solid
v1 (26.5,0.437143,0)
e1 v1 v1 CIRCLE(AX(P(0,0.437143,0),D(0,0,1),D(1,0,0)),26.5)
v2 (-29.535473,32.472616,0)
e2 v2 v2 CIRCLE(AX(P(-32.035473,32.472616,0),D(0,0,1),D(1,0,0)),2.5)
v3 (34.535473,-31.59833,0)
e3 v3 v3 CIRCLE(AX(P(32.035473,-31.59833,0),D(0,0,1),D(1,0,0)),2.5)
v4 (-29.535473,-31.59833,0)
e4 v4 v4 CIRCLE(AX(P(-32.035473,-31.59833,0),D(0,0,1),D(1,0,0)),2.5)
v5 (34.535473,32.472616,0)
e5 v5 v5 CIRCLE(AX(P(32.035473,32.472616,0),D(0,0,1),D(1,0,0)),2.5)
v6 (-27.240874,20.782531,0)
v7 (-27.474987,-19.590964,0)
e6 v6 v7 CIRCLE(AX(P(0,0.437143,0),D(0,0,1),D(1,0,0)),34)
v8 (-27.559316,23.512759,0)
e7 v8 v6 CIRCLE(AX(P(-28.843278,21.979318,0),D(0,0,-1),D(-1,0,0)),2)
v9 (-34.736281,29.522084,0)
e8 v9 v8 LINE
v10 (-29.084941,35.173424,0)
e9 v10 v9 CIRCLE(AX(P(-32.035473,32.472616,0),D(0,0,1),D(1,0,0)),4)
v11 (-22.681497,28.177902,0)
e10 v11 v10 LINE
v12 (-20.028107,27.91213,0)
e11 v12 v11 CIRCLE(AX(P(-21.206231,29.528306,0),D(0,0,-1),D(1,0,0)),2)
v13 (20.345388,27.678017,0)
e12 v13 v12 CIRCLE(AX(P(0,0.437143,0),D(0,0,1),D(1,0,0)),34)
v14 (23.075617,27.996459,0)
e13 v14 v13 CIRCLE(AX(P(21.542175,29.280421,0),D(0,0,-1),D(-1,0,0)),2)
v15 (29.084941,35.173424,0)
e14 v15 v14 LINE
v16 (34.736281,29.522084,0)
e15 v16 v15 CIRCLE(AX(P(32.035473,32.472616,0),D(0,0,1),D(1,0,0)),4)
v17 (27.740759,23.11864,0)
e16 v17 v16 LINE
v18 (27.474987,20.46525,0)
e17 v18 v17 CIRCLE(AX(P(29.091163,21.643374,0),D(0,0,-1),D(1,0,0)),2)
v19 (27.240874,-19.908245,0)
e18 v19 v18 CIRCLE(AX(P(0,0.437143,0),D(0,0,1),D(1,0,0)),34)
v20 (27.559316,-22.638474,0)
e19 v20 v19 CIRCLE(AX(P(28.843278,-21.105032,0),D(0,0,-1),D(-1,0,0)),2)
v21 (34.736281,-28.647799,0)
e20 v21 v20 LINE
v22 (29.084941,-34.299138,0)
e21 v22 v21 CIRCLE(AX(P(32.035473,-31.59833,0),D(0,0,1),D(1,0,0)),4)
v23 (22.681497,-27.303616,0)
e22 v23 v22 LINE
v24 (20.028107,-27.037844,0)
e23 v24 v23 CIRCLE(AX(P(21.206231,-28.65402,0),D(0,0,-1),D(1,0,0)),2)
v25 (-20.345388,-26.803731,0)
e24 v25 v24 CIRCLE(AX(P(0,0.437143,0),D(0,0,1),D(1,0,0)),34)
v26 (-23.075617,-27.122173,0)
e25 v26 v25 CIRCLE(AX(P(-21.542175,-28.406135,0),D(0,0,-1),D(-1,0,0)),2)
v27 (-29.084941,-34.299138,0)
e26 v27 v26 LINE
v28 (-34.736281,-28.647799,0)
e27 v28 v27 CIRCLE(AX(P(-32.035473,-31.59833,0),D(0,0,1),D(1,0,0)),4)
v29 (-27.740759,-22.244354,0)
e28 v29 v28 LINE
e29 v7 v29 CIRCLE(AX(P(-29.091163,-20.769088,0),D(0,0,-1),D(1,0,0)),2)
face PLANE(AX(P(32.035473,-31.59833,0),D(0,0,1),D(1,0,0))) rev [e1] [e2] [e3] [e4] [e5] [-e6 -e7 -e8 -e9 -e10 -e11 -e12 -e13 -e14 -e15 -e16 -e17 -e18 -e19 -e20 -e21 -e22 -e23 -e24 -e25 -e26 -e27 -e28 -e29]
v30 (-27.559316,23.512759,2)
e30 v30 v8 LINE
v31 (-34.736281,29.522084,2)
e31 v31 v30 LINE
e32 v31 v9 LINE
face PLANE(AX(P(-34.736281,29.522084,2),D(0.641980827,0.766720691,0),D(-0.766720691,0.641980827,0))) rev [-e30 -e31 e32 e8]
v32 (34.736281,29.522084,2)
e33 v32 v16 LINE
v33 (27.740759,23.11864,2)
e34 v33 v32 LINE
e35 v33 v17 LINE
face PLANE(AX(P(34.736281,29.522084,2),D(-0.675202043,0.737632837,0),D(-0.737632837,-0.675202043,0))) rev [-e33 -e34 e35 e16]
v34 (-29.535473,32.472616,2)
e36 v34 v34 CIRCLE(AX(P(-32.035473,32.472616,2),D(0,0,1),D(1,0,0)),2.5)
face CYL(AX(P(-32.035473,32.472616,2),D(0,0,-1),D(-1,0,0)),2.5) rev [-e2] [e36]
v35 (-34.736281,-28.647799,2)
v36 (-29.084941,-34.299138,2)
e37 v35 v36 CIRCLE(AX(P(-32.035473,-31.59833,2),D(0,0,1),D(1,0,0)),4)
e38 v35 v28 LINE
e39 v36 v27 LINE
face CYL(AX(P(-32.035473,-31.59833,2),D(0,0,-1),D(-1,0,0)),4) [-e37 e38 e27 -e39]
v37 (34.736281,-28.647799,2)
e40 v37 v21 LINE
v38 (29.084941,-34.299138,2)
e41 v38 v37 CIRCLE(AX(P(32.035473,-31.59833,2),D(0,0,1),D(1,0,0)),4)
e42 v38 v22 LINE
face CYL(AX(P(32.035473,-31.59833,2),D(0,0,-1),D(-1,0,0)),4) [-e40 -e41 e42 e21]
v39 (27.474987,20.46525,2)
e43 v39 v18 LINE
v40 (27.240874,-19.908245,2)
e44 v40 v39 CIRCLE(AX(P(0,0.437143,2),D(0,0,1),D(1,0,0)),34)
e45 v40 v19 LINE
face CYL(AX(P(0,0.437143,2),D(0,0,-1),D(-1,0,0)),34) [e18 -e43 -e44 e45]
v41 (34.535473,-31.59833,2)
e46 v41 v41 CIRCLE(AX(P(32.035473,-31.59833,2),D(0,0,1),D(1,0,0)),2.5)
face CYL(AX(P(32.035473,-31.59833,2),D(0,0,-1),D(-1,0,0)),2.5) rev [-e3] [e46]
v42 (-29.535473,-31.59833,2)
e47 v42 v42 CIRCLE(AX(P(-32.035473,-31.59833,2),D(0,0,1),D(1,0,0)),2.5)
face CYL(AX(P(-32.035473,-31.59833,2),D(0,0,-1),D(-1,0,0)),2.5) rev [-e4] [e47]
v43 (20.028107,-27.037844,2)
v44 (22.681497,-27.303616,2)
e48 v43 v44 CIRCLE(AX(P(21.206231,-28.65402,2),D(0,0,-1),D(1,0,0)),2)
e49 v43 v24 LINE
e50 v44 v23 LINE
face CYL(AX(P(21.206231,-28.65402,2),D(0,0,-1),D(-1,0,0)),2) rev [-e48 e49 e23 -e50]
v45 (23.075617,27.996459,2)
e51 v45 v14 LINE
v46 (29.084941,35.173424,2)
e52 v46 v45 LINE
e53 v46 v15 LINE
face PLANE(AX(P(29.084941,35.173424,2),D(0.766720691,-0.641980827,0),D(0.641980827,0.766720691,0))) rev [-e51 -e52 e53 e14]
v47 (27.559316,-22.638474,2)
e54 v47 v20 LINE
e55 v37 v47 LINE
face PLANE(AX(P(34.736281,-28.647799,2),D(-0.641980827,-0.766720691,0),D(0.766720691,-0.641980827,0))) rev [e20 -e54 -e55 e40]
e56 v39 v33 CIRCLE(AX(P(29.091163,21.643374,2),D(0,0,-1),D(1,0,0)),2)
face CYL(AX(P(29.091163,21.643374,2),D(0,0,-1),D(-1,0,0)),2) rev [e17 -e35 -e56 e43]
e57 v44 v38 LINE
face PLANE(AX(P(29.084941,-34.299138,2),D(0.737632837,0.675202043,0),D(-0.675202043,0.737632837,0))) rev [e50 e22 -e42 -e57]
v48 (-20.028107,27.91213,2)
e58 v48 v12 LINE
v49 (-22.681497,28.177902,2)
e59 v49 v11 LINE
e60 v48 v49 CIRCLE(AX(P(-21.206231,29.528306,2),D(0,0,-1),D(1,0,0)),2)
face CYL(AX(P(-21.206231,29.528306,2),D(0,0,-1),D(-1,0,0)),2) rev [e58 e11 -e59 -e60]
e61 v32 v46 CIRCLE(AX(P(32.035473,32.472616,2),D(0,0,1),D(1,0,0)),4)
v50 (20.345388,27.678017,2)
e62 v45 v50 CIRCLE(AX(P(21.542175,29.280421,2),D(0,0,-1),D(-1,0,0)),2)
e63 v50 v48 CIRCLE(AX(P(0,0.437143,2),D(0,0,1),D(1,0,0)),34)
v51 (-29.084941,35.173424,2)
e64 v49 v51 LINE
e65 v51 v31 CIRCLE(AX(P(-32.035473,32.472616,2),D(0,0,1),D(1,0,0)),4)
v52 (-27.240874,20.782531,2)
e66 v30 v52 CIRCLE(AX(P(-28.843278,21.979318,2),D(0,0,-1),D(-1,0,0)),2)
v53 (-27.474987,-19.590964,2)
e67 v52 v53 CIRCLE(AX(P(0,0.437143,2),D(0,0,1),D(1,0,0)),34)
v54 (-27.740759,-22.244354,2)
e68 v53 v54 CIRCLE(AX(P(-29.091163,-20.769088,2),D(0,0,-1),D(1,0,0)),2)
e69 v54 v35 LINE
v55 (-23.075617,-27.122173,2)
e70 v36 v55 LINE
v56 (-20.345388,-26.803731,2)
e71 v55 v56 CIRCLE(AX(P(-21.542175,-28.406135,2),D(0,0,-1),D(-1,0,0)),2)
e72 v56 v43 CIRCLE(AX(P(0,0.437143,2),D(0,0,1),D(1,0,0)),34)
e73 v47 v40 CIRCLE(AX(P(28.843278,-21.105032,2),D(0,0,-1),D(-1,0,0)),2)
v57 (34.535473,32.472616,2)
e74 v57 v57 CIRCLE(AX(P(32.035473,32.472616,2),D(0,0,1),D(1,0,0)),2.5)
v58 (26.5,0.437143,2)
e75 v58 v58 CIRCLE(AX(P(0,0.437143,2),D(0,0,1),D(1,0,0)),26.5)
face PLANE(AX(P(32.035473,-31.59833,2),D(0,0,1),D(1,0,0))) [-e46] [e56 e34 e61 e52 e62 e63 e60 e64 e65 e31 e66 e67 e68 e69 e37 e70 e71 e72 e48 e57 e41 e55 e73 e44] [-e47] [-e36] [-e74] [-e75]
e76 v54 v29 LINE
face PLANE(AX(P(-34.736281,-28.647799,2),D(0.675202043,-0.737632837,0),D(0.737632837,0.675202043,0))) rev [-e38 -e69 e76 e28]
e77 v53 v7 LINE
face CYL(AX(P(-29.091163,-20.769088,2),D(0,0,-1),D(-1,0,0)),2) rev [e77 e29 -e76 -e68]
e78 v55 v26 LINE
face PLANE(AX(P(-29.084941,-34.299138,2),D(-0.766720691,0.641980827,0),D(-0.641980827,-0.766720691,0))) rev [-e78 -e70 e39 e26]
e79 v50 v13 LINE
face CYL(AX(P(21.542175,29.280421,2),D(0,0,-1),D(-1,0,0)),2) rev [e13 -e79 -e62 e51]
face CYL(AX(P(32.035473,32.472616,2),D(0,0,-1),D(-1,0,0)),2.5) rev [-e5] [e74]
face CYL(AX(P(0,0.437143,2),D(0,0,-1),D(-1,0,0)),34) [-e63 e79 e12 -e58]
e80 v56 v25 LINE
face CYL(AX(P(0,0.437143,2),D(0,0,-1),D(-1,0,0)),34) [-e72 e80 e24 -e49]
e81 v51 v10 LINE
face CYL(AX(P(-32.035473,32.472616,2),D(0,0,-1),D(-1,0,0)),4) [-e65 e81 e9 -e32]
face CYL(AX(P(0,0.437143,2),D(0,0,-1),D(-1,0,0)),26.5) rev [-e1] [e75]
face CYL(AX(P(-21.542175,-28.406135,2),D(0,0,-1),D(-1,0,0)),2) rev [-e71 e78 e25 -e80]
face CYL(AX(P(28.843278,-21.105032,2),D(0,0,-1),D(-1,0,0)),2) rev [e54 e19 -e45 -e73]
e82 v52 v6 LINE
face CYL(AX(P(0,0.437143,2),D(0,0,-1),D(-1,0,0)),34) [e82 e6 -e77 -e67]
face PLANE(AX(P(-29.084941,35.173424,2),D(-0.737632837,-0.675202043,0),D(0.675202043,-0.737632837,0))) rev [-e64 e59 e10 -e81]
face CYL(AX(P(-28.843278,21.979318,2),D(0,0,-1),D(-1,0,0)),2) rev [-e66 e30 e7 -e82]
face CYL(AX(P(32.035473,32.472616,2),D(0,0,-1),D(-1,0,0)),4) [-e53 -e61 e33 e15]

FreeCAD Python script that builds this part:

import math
import FreeCAD as App
import Part
import Sketcher

V = App.Vector

doc = App.newDocument("Part")
body = doc.addObject("PartDesign::Body", "Body")

# Sketch on XY plane
sketch1 = doc.addObject("Sketcher::SketchObject", "Sketch")
body.addObject(sketch1)
sketch1.AttachmentSupport = (doc.XY_Plane, [""])
sketch1.MapMode = "FlatFace"
sketch1.addGeometry(Part.LineSegment(V(22.7, -27.3, 0), V(29.1, -34.3, 0)), False)
sketch1.addGeometry(Part.ArcOfCircle(Part.Circle(V(32, -31.6, 0), V(0, 0, 1), 4), math.radians(-138), math.radians(48)), False)
sketch1.addGeometry(Part.LineSegment(V(34.7, -28.6, 0), V(27.6, -22.6, 0)), False)
sketch1.addGeometry(Part.ArcOfCircle(Part.Circle(V(28.8, -21.1, 0), V(0, 0, 1), 2), math.radians(143), math.radians(230)), False)
sketch1.addGeometry(Part.ArcOfCircle(Part.Circle(V(0, 0.4, 0), V(0, 0, 1), 34), math.radians(-37), math.radians(36)), False)
sketch1.addGeometry(Part.ArcOfCircle(Part.Circle(V(29.1, 21.6, 0), V(0, 0, 1), 2), math.radians(132), math.radians(216)), False)
sketch1.addGeometry(Part.LineSegment(V(27.7, 23.1, 0), V(34.7, 29.5, 0)), False)
sketch1.addGeometry(Part.ArcOfCircle(Part.Circle(V(32, 32.5, 0), V(0, 0, 1), 4), math.radians(-48), math.radians(138)), False)
sketch1.addGeometry(Part.LineSegment(V(29.1, 35.2, 0), V(23.1, 28, 0)), False)
sketch1.addGeometry(Part.ArcOfCircle(Part.Circle(V(21.5, 29.3, 0), V(0, 0, 1), 2), math.radians(-127), math.radians(-40)), False)
sketch1.addGeometry(Part.ArcOfCircle(Part.Circle(V(0, 0.4, 0), V(0, 0, 1), 34), math.radians(53), math.radians(126)), False)
sketch1.addGeometry(Part.ArcOfCircle(Part.Circle(V(-21.2, 29.5, 0), V(0, 0, 1), 2), math.radians(-138), math.radians(-54)), False)
sketch1.addGeometry(Part.LineSegment(V(-22.7, 28.2, 0), V(-29.1, 35.2, 0)), False)
sketch1.addGeometry(Part.ArcOfCircle(Part.Circle(V(-32, 32.5, 0), V(0, 0, 1), 4), math.radians(42), math.radians(228)), False)
sketch1.addGeometry(Part.LineSegment(V(-34.7, 29.5, 0), V(-27.6, 23.5, 0)), False)
sketch1.addGeometry(Part.ArcOfCircle(Part.Circle(V(-28.8, 22, 0), V(0, 0, 1), 2), math.radians(-37), math.radians(50)), False)
sketch1.addGeometry(Part.ArcOfCircle(Part.Circle(V(0, 0.4, 0), V(0, 0, 1), 34), math.radians(143), math.radians(216)), False)
sketch1.addGeometry(Part.ArcOfCircle(Part.Circle(V(-29.1, -20.8, 0), V(0, 0, 1), 2), math.radians(-48), math.radians(36)), False)
sketch1.addGeometry(Part.LineSegment(V(-27.7, -22.2, 0), V(-34.7, -28.6, 0)), False)
sketch1.addGeometry(Part.ArcOfCircle(Part.Circle(V(-32, -31.6, 0), V(0, 0, 1), 4), math.radians(132), math.radians(318)), False)
sketch1.addGeometry(Part.LineSegment(V(-29.1, -34.3, 0), V(-23.1, -27.1, 0)), False)
sketch1.addGeometry(Part.ArcOfCircle(Part.Circle(V(-21.5, -28.4, 0), V(0, 0, 1), 2), math.radians(53), math.radians(140)), False)
sketch1.addGeometry(Part.ArcOfCircle(Part.Circle(V(0, 0.4, 0), V(0, 0, 1), 34), math.radians(-127), math.radians(-54)), False)
sketch1.addGeometry(Part.ArcOfCircle(Part.Circle(V(21.2, -28.7, 0), V(0, 0, 1), 2), math.radians(42), math.radians(126)), False)
sketch1.addGeometry(Part.Circle(V(32, -31.6, 0), V(0, 0, 1), 2.5), False)
sketch1.addGeometry(Part.Circle(V(-32, -31.6, 0), V(0, 0, 1), 2.5), False)
sketch1.addGeometry(Part.Circle(V(32, 32.5, 0), V(0, 0, 1), 2.5), False)
sketch1.addGeometry(Part.Circle(V(0, 0.4, 0), V(0, 0, 1), 26.5), False)
sketch1.addGeometry(Part.Circle(V(-32, 32.5, 0), V(0, 0, 1), 2.5), False)
sketch1.addConstraint(Sketcher.Constraint("Tangent", 0, 2, 1, 1))
sketch1.addConstraint(Sketcher.Constraint("Coincident", 1, 2, 2, 1))
sketch1.addConstraint(Sketcher.Constraint("Tangent", 2, 2, 3, 2))
sketch1.addConstraint(Sketcher.Constraint("Tangent", 3, 1, 4, 1))
sketch1.addConstraint(Sketcher.Constraint("Tangent", 4, 2, 5, 2))
sketch1.addConstraint(Sketcher.Constraint("Tangent", 5, 1, 6, 1))
sketch1.addConstraint(Sketcher.Constraint("Tangent", 6, 2, 7, 1))
sketch1.addConstraint(Sketcher.Constraint("Coincident", 7, 2, 8, 1))
sketch1.addConstraint(Sketcher.Constraint("Tangent", 8, 2, 9, 2))
sketch1.addConstraint(Sketcher.Constraint("Tangent", 9, 1, 10, 1))
sketch1.addConstraint(Sketcher.Constraint("Tangent", 10, 2, 11, 2))
sketch1.addConstraint(Sketcher.Constraint("Tangent", 11, 1, 12, 1))
sketch1.addConstraint(Sketcher.Constraint("Tangent", 12, 2, 13, 1))
sketch1.addConstraint(Sketcher.Constraint("Coincident", 13, 2, 14, 1))
sketch1.addConstraint(Sketcher.Constraint("Tangent", 14, 2, 15, 2))
sketch1.addConstraint(Sketcher.Constraint("Tangent", 15, 1, 16, 1))
sketch1.addConstraint(Sketcher.Constraint("Tangent", 16, 2, 17, 2))
sketch1.addConstraint(Sketcher.Constraint("Tangent", 17, 1, 18, 1))
sketch1.addConstraint(Sketcher.Constraint("Tangent", 18, 2, 19, 1))
sketch1.addConstraint(Sketcher.Constraint("Coincident", 19, 2, 20, 1))
sketch1.addConstraint(Sketcher.Constraint("Tangent", 20, 2, 21, 2))
sketch1.addConstraint(Sketcher.Constraint("Tangent", 21, 1, 22, 1))
sketch1.addConstraint(Sketcher.Constraint("Tangent", 22, 2, 23, 2))
sketch1.addConstraint(Sketcher.Constraint("Tangent", 23, 1, 0, 1))
sketch1.addConstraint(Sketcher.Constraint("Coincident", 10, 3, 4, 3))
sketch1.addConstraint(Sketcher.Constraint("Coincident", 16, 3, 4, 3))
sketch1.addConstraint(Sketcher.Constraint("Coincident", 22, 3, 4, 3))
sketch1.addConstraint(Sketcher.Constraint("Coincident", 24, 3, 1, 3))
sketch1.addConstraint(Sketcher.Constraint("Coincident", 25, 3, 19, 3))
sketch1.addConstraint(Sketcher.Constraint("Coincident", 26, 3, 7, 3))
sketch1.addConstraint(Sketcher.Constraint("Coincident", 27, 3, 4, 3))
sketch1.addConstraint(Sketcher.Constraint("Coincident", 28, 3, 13, 3))
sketch1.addConstraint(Sketcher.Constraint("Equal", 3, 5))
sketch1.addConstraint(Sketcher.Constraint("Equal", 1, 7))
sketch1.addConstraint(Sketcher.Constraint("Equal", 5, 9))
sketch1.addConstraint(Sketcher.Constraint("Equal", 4, 10))
sketch1.addConstraint(Sketcher.Constraint("Equal", 9, 11))
sketch1.addConstraint(Sketcher.Constraint("Equal", 7, 13))
sketch1.addConstraint(Sketcher.Constraint("Equal", 11, 15))
sketch1.addConstraint(Sketcher.Constraint("Equal", 10, 16))
sketch1.addConstraint(Sketcher.Constraint("Equal", 15, 17))
sketch1.addConstraint(Sketcher.Constraint("Equal", 13, 19))
sketch1.addConstraint(Sketcher.Constraint("Equal", 17, 21))
sketch1.addConstraint(Sketcher.Constraint("Equal", 16, 22))
sketch1.addConstraint(Sketcher.Constraint("Equal", 21, 23))
sketch1.addConstraint(Sketcher.Constraint("Equal", 24, 25))
sketch1.addConstraint(Sketcher.Constraint("Equal", 25, 26))
sketch1.addConstraint(Sketcher.Constraint("Equal", 26, 28))
sketch1.addConstraint(Sketcher.Constraint("Symmetric", 7, 3, 13, 3, -2))
sketch1.addConstraint(Sketcher.Constraint("Symmetric", 1, 3, 19, 3, -2))
sketch1.addConstraint(Sketcher.Constraint("PointOnObject", 4, 3, -2))
sketch1.addConstraint(Sketcher.Constraint("Perpendicular", 0, 6))
sketch1.addConstraint(Sketcher.Constraint("Perpendicular", 2, 8))
sketch1.addConstraint(Sketcher.Constraint("Perpendicular", 6, 12))
sketch1.addConstraint(Sketcher.Constraint("Perpendicular", 8, 14))
sketch1.addConstraint(Sketcher.Constraint("Perpendicular", 12, 18))
sketch1.addConstraint(Sketcher.Constraint("Perpendicular", 14, 20))
sketch1.addConstraint(Sketcher.Constraint("Horizontal", 7, 2, 12, 2))
sketch1.addConstraint(Sketcher.Constraint("Horizontal", 6, 2, 13, 2))
sketch1.addConstraint(Sketcher.Constraint("Horizontal", 1, 2, 18, 2))
sketch1.addConstraint(Sketcher.Constraint("Horizontal", 0, 2, 19, 2))
sketch1.addConstraint(Sketcher.Constraint("Vertical", 1, 3, 7, 3))
sketch1.addConstraint(Sketcher.Constraint("Equal", 0, 6))
sketch1.addConstraint(Sketcher.Constraint("Equal", 2, 8))
sketch1.addConstraint(Sketcher.Constraint("Diameter", 24, 5.0))
sketch1.addConstraint(Sketcher.Constraint("Diameter", 27, 53.0))
sketch1.addConstraint(Sketcher.Constraint("Radius", 1, 4.0))
sketch1.addConstraint(Sketcher.Constraint("Radius", 3, 2.0))
sketch1.addConstraint(Sketcher.Constraint("Radius", 4, 34.0))
sketch1.addConstraint(Sketcher.Constraint("Distance", 2, 9.360598))
sketch1.addConstraint(Sketcher.Constraint("DistanceY", 1, 2, -1, 1, 28.647799))
sketch1.addConstraint(Sketcher.Constraint("DistanceY", -1, 1, 11, 1, 28.177902))
sketch1.addConstraint(Sketcher.Constraint("DistanceX", 3, 1, 1, 3, 4.794599))
pad1 = doc.addObject("PartDesign::Pad", "Pad")
body.addObject(pad1)
pad1.Profile = sketch1
pad1.Length = 2

doc.recompute()
